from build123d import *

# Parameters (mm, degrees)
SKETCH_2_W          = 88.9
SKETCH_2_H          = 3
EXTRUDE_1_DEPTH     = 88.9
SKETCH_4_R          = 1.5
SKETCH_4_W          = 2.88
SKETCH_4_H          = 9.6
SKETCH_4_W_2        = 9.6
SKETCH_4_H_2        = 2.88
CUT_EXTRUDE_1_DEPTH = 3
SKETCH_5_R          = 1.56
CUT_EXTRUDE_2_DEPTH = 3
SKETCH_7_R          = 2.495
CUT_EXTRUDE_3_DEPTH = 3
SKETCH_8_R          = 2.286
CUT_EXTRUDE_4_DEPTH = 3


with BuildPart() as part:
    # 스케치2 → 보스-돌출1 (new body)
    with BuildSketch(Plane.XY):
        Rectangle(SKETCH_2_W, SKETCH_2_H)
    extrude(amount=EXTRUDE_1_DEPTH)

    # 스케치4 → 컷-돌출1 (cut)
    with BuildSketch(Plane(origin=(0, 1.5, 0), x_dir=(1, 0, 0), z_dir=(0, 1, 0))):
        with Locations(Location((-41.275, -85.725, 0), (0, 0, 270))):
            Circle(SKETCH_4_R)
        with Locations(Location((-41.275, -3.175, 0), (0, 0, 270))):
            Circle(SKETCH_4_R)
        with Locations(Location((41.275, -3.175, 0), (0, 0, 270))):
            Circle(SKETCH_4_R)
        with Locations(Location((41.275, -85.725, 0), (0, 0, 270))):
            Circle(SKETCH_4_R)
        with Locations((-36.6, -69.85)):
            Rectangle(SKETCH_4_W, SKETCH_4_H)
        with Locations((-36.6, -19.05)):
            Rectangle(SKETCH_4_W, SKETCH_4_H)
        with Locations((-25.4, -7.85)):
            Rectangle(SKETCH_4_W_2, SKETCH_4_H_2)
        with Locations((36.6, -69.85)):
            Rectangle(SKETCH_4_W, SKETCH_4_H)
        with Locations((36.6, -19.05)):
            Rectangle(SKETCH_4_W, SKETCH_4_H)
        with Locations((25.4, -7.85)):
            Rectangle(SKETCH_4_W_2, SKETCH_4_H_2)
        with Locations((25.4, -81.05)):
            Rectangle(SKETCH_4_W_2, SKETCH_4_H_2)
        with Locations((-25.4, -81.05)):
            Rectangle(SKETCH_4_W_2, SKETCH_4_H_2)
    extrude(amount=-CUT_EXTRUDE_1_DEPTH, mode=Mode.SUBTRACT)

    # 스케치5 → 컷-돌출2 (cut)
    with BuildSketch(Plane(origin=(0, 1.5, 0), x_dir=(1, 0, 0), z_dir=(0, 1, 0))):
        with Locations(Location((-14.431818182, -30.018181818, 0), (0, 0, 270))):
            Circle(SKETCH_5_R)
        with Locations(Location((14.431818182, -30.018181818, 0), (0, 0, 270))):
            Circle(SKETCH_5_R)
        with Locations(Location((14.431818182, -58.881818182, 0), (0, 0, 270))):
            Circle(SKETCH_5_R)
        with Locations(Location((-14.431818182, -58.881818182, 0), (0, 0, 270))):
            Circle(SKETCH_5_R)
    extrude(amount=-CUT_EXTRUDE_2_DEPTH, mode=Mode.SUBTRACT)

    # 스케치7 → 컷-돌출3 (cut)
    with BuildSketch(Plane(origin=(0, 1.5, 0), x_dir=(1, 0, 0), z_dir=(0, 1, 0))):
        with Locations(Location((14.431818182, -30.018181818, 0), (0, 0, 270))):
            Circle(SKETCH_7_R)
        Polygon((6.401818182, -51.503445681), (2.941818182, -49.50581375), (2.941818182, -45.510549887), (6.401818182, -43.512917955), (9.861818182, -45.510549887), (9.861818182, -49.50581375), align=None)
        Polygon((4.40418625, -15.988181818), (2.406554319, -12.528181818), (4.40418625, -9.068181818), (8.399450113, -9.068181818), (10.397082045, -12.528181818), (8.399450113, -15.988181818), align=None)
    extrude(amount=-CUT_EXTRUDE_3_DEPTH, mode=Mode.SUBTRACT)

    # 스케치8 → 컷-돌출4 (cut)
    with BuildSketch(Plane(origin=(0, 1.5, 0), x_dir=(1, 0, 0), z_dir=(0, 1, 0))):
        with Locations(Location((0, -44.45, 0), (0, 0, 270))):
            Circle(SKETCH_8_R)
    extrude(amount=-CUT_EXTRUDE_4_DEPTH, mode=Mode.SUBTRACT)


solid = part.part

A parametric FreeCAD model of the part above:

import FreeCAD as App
import Part
import Sketcher
from FreeCAD import Vector
Q = App.Units.Quantity


def add_polygon(sketch, points):
    """Adds a closed chain of lines whose ends are joined by coincident constraints."""
    first, n = sketch.GeometryCount, len(points)
    for a, b in zip(points, points[1:] + points[:1]):
        sketch.addGeometry(Part.LineSegment(App.Vector(*a, 0), App.Vector(*b, 0)), False)
    for i in range(n):
        sketch.addConstraint(Sketcher.Constraint("Coincident", first + i, 2, first + (i + 1) % n, 1))

doc = App.newDocument("Part")
body = doc.addObject("PartDesign::Body", "Body")

sketch1 = body.newObject("Sketcher::SketchObject", "Sketch")
sketch1.AttachmentSupport = (doc.getObject("XY_Plane"), [""])
sketch1.MapMode = "FlatFace"
add_polygon(sketch1, [(-44.45, 1.5), (-44.45, -1.5), (44.45, -1.5), (44.45, 1.5)])
sketch1.addConstraint(Sketcher.Constraint("Vertical", 0))
sketch1.addConstraint(Sketcher.Constraint("Horizontal", 1))
sketch1.addConstraint(Sketcher.Constraint("Vertical", 2))
sketch1.addConstraint(Sketcher.Constraint("Horizontal", 3))
sketch1.addConstraint(Sketcher.Constraint("Symmetric", 0, 2, 2, 2, -1, 1))
sketch1.addConstraint(Sketcher.Constraint("DistanceY", 0, 2, 0, 1, Q("3 mm")))
sketch1.addConstraint(Sketcher.Constraint("DistanceX", 1, 1, 1, 2, Q("88.9 mm")))
pad1 = body.newObject("PartDesign::Pad", "Pad")
pad1.Profile = sketch1
pad1.Length = 88.9

sketch2 = body.newObject("Sketcher::SketchObject", "Sketch001")
sketch2.AttachmentSupport = (doc.getObject("XZ_Plane"), [""])
sketch2.MapMode = "FlatFace"
sketch2.AttachmentOffset = App.Placement(Vector(0, 0, -1.5), App.Rotation())
sketch2.addGeometry(Part.Circle(Vector(-41.275, 85.725, 0), Vector(0, 0, 1), 1.5), False)
sketch2.addGeometry(Part.Circle(Vector(-41.275, 3.175, 0), Vector(0, 0, 1), 1.5), False)
sketch2.addGeometry(Part.Circle(Vector(41.275, 3.175, 0), Vector(0, 0, 1), 1.5), False)
sketch2.addGeometry(Part.Circle(Vector(41.275, 85.725, 0), Vector(0, 0, 1), 1.5), False)
add_polygon(sketch2, [(-38.04, 65.05), (-38.04, 74.65), (-35.16, 74.65), (-35.16, 65.05)])
add_polygon(sketch2, [(-38.04, 14.25), (-38.04, 23.85), (-35.16, 23.85), (-35.16, 14.25)])
add_polygon(sketch2, [(-30.2, 6.41), (-30.2, 9.29), (-20.6, 9.29), (-20.6, 6.41)])
add_polygon(sketch2, [(35.16, 65.05), (35.16, 74.65), (38.04, 74.65), (38.04, 65.05)])
add_polygon(sketch2, [(35.16, 14.25), (35.16, 23.85), (38.04, 23.85), (38.04, 14.25)])
add_polygon(sketch2, [(20.6, 6.41), (20.6, 9.29), (30.2, 9.29), (30.2, 6.41)])
add_polygon(sketch2, [(20.6, 79.61), (20.6, 82.49), (30.2, 82.49), (30.2, 79.61)])
add_polygon(sketch2, [(-30.2, 79.61), (-30.2, 82.49), (-20.6, 82.49), (-20.6, 79.61)])
sketch2.addConstraint(Sketcher.Constraint("Vertical", 4))
sketch2.addConstraint(Sketcher.Constraint("Horizontal", 5))
sketch2.addConstraint(Sketcher.Constraint("Vertical", 6))
sketch2.addConstraint(Sketcher.Constraint("Horizontal", 7))
sketch2.addConstraint(Sketcher.Constraint("Vertical", 8))
sketch2.addConstraint(Sketcher.Constraint("Horizontal", 9))
sketch2.addConstraint(Sketcher.Constraint("Vertical", 10))
sketch2.addConstraint(Sketcher.Constraint("Horizontal", 11))
sketch2.addConstraint(Sketcher.Constraint("Vertical", 12))
sketch2.addConstraint(Sketcher.Constraint("Horizontal", 13))
sketch2.addConstraint(Sketcher.Constraint("Vertical", 14))
sketch2.addConstraint(Sketcher.Constraint("Horizontal", 15))
sketch2.addConstraint(Sketcher.Constraint("Vertical", 16))
sketch2.addConstraint(Sketcher.Constraint("Horizontal", 17))
sketch2.addConstraint(Sketcher.Constraint("Vertical", 18))
sketch2.addConstraint(Sketcher.Constraint("Horizontal", 19))
sketch2.addConstraint(Sketcher.Constraint("Vertical", 20))
sketch2.addConstraint(Sketcher.Constraint("Horizontal", 21))
sketch2.addConstraint(Sketcher.Constraint("Vertical", 22))
sketch2.addConstraint(Sketcher.Constraint("Horizontal", 23))
sketch2.addConstraint(Sketcher.Constraint("Vertical", 24))
sketch2.addConstraint(Sketcher.Constraint("Horizontal", 25))
sketch2.addConstraint(Sketcher.Constraint("Vertical", 26))
sketch2.addConstraint(Sketcher.Constraint("Horizontal", 27))
sketch2.addConstraint(Sketcher.Constraint("Vertical", 28))
sketch2.addConstraint(Sketcher.Constraint("Horizontal", 29))
sketch2.addConstraint(Sketcher.Constraint("Vertical", 30))
sketch2.addConstraint(Sketcher.Constraint("Horizontal", 31))
sketch2.addConstraint(Sketcher.Constraint("Vertical", 32))
sketch2.addConstraint(Sketcher.Constraint("Horizontal", 33))
sketch2.addConstraint(Sketcher.Constraint("Vertical", 34))
sketch2.addConstraint(Sketcher.Constraint("Horizontal", 35))
sketch2.addConstraint(Sketcher.Constraint("Equal", 0, 1))
sketch2.addConstraint(Sketcher.Constraint("Equal", 1, 2))
sketch2.addConstraint(Sketcher.Constraint("Equal", 2, 3))
sketch2.addConstraint(Sketcher.Constraint("Symmetric", 1, 3, 2, 3, -2))
sketch2.addConstraint(Sketcher.Constraint("Symmetric", 0, 3, 3, 3, -2))
sketch2.addConstraint(Sketcher.Constraint("Symmetric", 5, 2, 16, 2, -2))
sketch2.addConstraint(Sketcher.Constraint("Symmetric", 7, 2, 18, 2, -2))
sketch2.addConstraint(Sketcher.Constraint("Symmetric", 9, 2, 20, 2, -2))
sketch2.addConstraint(Sketcher.Constraint("Symmetric", 11, 2, 22, 2, -2))
sketch2.addConstraint(Sketcher.Constraint("Symmetric", 13, 2, 24, 2, -2))
sketch2.addConstraint(Sketcher.Constraint("Symmetric", 15, 2, 26, 2, -2))
sketch2.addConstraint(Sketcher.Constraint("Symmetric", 29, 2, 32, 2, -2))
sketch2.addConstraint(Sketcher.Constraint("Symmetric", 31, 2, 34, 2, -2))
sketch2.addConstraint(Sketcher.Constraint("Vertical", 0, 3, 1, 3))
sketch2.addConstraint(Sketcher.Constraint("Vertical", 7, 2, 8, 2))
sketch2.addConstraint(Sketcher.Constraint("Vertical", 6, 2, 9, 2))
sketch2.addConstraint(Sketcher.Constraint("Vertical", 27, 2, 28, 2))
sketch2.addConstraint(Sketcher.Constraint("Vertical", 26, 2, 29, 2))
sketch2.addConstraint(Sketcher.Constraint("Equal", 35, 4))
sketch2.addConstraint(Sketcher.Constraint("Equal", 6, 8))
sketch2.addConstraint(Sketcher.Constraint("Equal", 23, 12))
sketch2.addConstraint(Sketcher.Constraint("Equal", 26, 28))
sketch2.addConstraint(Sketcher.Constraint("Diameter", 0, Q("3 mm")))
sketch2.addConstraint(Sketcher.Constraint("DistanceX", 13, 1, 13, 2, Q("9.6 mm")))
sketch2.addConstraint(Sketcher.Constraint("DistanceX", 5, 1, 5, 2, Q("2.88 mm")))
sketch2.addConstraint(Sketcher.Constraint("DistanceX", 12, 2, -1, 1, Q("30.2 mm")))
sketch2.addConstraint(Sketcher.Constraint("DistanceY", 8, 2, 7, 2, Q("41.2 mm")))
sketch2.addConstraint(Sketcher.Constraint("DistanceX", 4, 2, 16, 2, Q("73.2 mm")))
sketch2.addConstraint(Sketcher.Constraint("DistanceY", -1, 1, 4, 2, Q("74.65 mm")))
sketch2.addConstraint(Sketcher.Constraint("DistanceY", -1, 1, 12, 2, Q("9.29 mm")))
sketch2.addConstraint(Sketcher.Constraint("DistanceY", -1, 1, 28, 2, Q("82.49 mm")))
sketch2.addConstraint(Sketcher.Constraint("DistanceY", 1, 3, 0, 3, Q("82.55 mm")))
sketch2.addConstraint(Sketcher.Constraint("DistanceX", 1, 3, 2, 3, Q("82.55 mm")))
sketch2.addConstraint(Sketcher.Constraint("DistanceY", -1, 1, 0, 3, Q("85.725 mm")))
pocket1 = body.newObject("PartDesign::Pocket", "Pocket")
pocket1.Profile = sketch2
pocket1.Length = 3
pocket1.Reversed = True

sketch3 = body.newObject("Sketcher::SketchObject", "Sketch002")
sketch3.AttachmentSupport = (doc.getObject("XZ_Plane"), [""])
sketch3.MapMode = "FlatFace"
sketch3.AttachmentOffset = App.Placement(Vector(0, 0, -1.5), App.Rotation())
sketch3.addGeometry(Part.Circle(Vector(-14.431818, 30.018182, 0), Vector(0, 0, 1), 1.56), False)
sketch3.addGeometry(Part.Circle(Vector(14.431818, 30.018182, 0), Vector(0, 0, 1), 1.56), False)
sketch3.addGeometry(Part.Circle(Vector(14.431818, 58.881818, 0), Vector(0, 0, 1), 1.56), False)
sketch3.addGeometry(Part.Circle(Vector(-14.431818, 58.881818, 0), Vector(0, 0, 1), 1.56), False)
sketch3.addConstraint(Sketcher.Constraint("Equal", 0, 1))
sketch3.addConstraint(Sketcher.Constraint("Equal", 1, 2))
sketch3.addConstraint(Sketcher.Constraint("Equal", 2, 3))
sketch3.addConstraint(Sketcher.Constraint("Symmetric", 0, 3, 1, 3, -2))
sketch3.addConstraint(Sketcher.Constraint("Symmetric", 2, 3, 3, 3, -2))
sketch3.addConstraint(Sketcher.Constraint("Vertical", 1, 3, 2, 3))
sketch3.addConstraint(Sketcher.Constraint("Diameter", 0, Q("3.12 mm")))
sketch3.addConstraint(Sketcher.Constraint("DistanceX", 0, 3, -1, 1, Q("14.431818 mm")))
sketch3.addConstraint(Sketcher.Constraint("DistanceY", -1, 1, 0, 3, Q("30.018182 mm")))
sketch3.addConstraint(Sketcher.Constraint("DistanceY", -1, 1, 2, 3, Q("58.881818 mm")))
pocket2 = body.newObject("PartDesign::Pocket", "Pocket001")
pocket2.Profile = sketch3
pocket2.Length = 3
pocket2.Reversed = True

sketch4 = body.newObject("Sketcher::SketchObject", "Sketch003")
sketch4.AttachmentSupport = (doc.getObject("XZ_Plane"), [""])
sketch4.MapMode = "FlatFace"
sketch4.AttachmentOffset = App.Placement(Vector(0, 0, -1.5), App.Rotation())
sketch4.addGeometry(Part.Circle(Vector(14.431818, 30.018182, 0), Vector(0, 0, 1), 2.495), False)
add_polygon(sketch4, [(2.941818, 49.505814), (6.401818, 51.503446), (9.861818, 49.505814), (9.861818, 45.51055), (6.401818, 43.512918), (2.941818, 45.51055)])
add_polygon(sketch4, [(2.406554, 12.528182), (4.404186, 15.988182), (8.39945, 15.988182), (10.397082, 12.528182), (8.39945, 9.068182), (4.404186, 9.068182)])
sketch4.addConstraint(Sketcher.Constraint("Vertical", 3))
sketch4.addConstraint(Sketcher.Constraint("Vertical", 6))
sketch4.addConstraint(Sketcher.Constraint("Horizontal", 8))
sketch4.addConstraint(Sketcher.Constraint("Horizontal", 11))
sketch4.addConstraint(Sketcher.Constraint("Parallel", 1, 4))
sketch4.addConstraint(Sketcher.Constraint("Parallel", 2, 5))
sketch4.addConstraint(Sketcher.Constraint("Perpendicular", 5, 7))
sketch4.addConstraint(Sketcher.Constraint("Perpendicular", 4, 9))
sketch4.addConstraint(Sketcher.Constraint("Parallel", 7, 10))
sketch4.addConstraint(Sketcher.Constraint("Parallel", 9, 12))
sketch4.addConstraint(Sketcher.Constraint("Horizontal", 3, 2, 5, 2))
sketch4.addConstraint(Sketcher.Constraint("Horizontal", 2, 2, 6, 2))
sketch4.addConstraint(Sketcher.Constraint("Horizontal", 9, 2, 12, 2))
sketch4.addConstraint(Sketcher.Constraint("Vertical", 1, 2, 4, 2))
sketch4.addConstraint(Sketcher.Constraint("Vertical", 8, 2, 10, 2))
sketch4.addConstraint(Sketcher.Constraint("Equal", 11, 3))
sketch4.addConstraint(Sketcher.Constraint("Equal", 5, 7))
sketch4.addConstraint(Sketcher.Constraint("Diameter", 0, Q("4.99 mm")))
sketch4.addConstraint(Sketcher.Constraint("Angle", 1, Q("30 deg")))
sketch4.addConstraint(Sketcher.Constraint("DistanceX", 1, 2, 0, 3, Q("8.03 mm")))
sketch4.addConstraint(Sketcher.Constraint("DistanceX", 1, 2, 2, 2, Q("3.46 mm")))
sketch4.addConstraint(Sketcher.Constraint("DistanceY", 7, 2, 0, 3, Q("14.03 mm")))
sketch4.addConstraint(Sketcher.Constraint("DistanceX", 8, 1, 8, 2, Q("3.995264 mm")))
sketch4.addConstraint(Sketcher.Constraint("DistanceX", -1, 1, 0, 3, Q("14.431818 mm")))
sketch4.addConstraint(Sketcher.Constraint("DistanceY", -1, 1, 0, 3, Q("30.018182 mm")))
sketch4.addConstraint(Sketcher.Constraint("DistanceY", -1, 1, 3, 2, Q("45.51055 mm")))
sketch4.addConstraint(Sketcher.Constraint("DistanceX", -1, 1, 8, 2, Q("8.39945 mm")))
pocket3 = body.newObject("PartDesign::Pocket", "Pocket002")
pocket3.Profile = sketch4
pocket3.Length = 3
pocket3.Reversed = True

sketch5 = body.newObject("Sketcher::SketchObject", "Sketch004")
sketch5.AttachmentSupport = (doc.getObject("XZ_Plane"), [""])
sketch5.MapMode = "FlatFace"
sketch5.AttachmentOffset = App.Placement(Vector(0, 0, -1.5), App.Rotation())
sketch5.addGeometry(Part.Circle(Vector(0, 44.45, 0), Vector(0, 0, 1), 2.286), False)
sketch5.addConstraint(Sketcher.Constraint("PointOnObject", 0, 3, -2))
sketch5.addConstraint(Sketcher.Constraint("Diameter", 0, Q("4.572 mm")))
sketch5.addConstraint(Sketcher.Constraint("DistanceY", -1, 1, 0, 3, Q("44.45 mm")))
pocket4 = body.newObject("PartDesign::Pocket", "Pocket003")
pocket4.Profile = sketch5
pocket4.Length = 3
pocket4.Reversed = True

doc.recompute()
